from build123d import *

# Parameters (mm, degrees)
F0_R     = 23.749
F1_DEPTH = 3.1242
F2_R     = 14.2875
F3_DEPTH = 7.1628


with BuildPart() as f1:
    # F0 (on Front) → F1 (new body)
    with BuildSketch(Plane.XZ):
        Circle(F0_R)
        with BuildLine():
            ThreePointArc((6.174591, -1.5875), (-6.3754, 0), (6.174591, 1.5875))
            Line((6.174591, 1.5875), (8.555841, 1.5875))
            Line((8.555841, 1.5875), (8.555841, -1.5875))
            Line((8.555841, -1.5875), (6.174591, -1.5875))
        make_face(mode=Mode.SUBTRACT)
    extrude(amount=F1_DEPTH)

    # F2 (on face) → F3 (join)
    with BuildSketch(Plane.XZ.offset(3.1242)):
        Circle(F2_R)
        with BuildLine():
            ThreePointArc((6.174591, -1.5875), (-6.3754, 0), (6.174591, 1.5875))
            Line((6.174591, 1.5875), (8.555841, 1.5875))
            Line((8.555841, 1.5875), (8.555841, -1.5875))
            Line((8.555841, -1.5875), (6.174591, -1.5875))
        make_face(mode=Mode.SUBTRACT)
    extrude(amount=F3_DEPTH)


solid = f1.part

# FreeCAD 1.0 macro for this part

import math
import FreeCAD as App
import Part
import Sketcher

V = App.Vector
Q = App.Units.Quantity

doc = App.newDocument("Part")
params = doc.addObject("Spreadsheet::Sheet", "Params")
for row, (alias, value) in enumerate([
    ("sketch1_diameter", "1.87 in"),
    ("sketch1_radius", "0.251 in"),
    ("sketch1_width", "0.09375 in"),
    ("sketch1_height", "0.125 in"),
    ("pad1_length", "0.123 in"),
    ("sketch2_diameter", "1.125 in"),
    ("sketch2_radius", "0.251 in"),
    ("sketch2_width", "0.09375 in"),
    ("sketch2_height", "0.125 in"),
    ("pad2_length", "0.282 in"),
], start=1):
    params.set(f"A{row}", alias)
    params.set(f"B{row}", "=" + value)
    params.setAlias(f"B{row}", alias)

body = doc.addObject("PartDesign::Body", "Body")

# Sketch on XZ plane
sketch1 = body.newObject("Sketcher::SketchObject", "Sketch")
sketch1.AttachmentSupport = (doc.getObject("XZ_Plane"), [""])
sketch1.MapMode = "FlatFace"
sketch1.addGeometry([
    Part.Circle(V(0, 0, 0), V(0, 0, 1), 23.7),  # 0
    Part.LineSegment(V(8.6, -1.6, 0), V(6.2, -1.6, 0)),  # 1
    Part.ArcOfCircle(Part.Circle(V(0, 0, 0), V(0, 0, 1), 6.4), math.radians(14), math.radians(346)),  # 2
    Part.LineSegment(V(6.2, 1.6, 0), V(8.6, 1.6, 0)),  # 3
    Part.LineSegment(V(8.6, 1.6, 0), V(8.6, -1.6, 0)),  # 4
], False)
sketch1.addConstraint([
    Sketcher.Constraint("Coincident", 1, 2, 2, 2),
    Sketcher.Constraint("Coincident", 2, 1, 3, 1),
    Sketcher.Constraint("Coincident", 3, 2, 4, 1),
    Sketcher.Constraint("Coincident", 4, 2, 1, 1),
    Sketcher.Constraint("Horizontal", 1),
    Sketcher.Constraint("Horizontal", 3),
    Sketcher.Constraint("Vertical", 4),
    Sketcher.Constraint("Coincident", 0, 3, -1, 1),
    Sketcher.Constraint("Coincident", 2, 3, -1, 1),
    Sketcher.Constraint("Vertical", 1, 2, 2, 1),
    Sketcher.Constraint("Diameter", 0, Q("1.87 in")),
    Sketcher.Constraint("Radius", 2, Q("0.251 in")),
    Sketcher.Constraint("DistanceX", 1, 2, 1, 1, Q("0.09375 in")),
    Sketcher.Constraint("DistanceY", 4, 2, 4, 1, Q("0.125 in")),
])
sketch1.setExpression("Constraints[10]", "Params.sketch1_diameter")
sketch1.setExpression("Constraints[11]", "Params.sketch1_radius")
sketch1.setExpression("Constraints[12]", "Params.sketch1_width")
sketch1.setExpression("Constraints[13]", "Params.sketch1_height")
pad1 = body.newObject("PartDesign::Pad", "Pad")
pad1.Profile = sketch1
pad1.setExpression("Length", "Params.pad1_length")

# Sketch on XZ plane
sketch2 = body.newObject("Sketcher::SketchObject", "Sketch001")
sketch2.AttachmentSupport = (doc.getObject("XZ_Plane"), [""])
sketch2.MapMode = "FlatFace"
sketch2.AttachmentOffset = App.Placement(V(0, 0, 0.123 * 25.4), App.Rotation())
sketch2.addGeometry([
    Part.Circle(V(0, 0, 0), V(0, 0, 1), 14.3),  # 0
    Part.LineSegment(V(8.6, -1.6, 0), V(6.2, -1.6, 0)),  # 1
    Part.ArcOfCircle(Part.Circle(V(0, 0, 0), V(0, 0, 1), 6.4), math.radians(14), math.radians(346)),  # 2
    Part.LineSegment(V(6.2, 1.6, 0), V(8.6, 1.6, 0)),  # 3
    Part.LineSegment(V(8.6, 1.6, 0), V(8.6, -1.6, 0)),  # 4
], False)
sketch2.addConstraint([
    Sketcher.Constraint("Coincident", 1, 2, 2, 2),
    Sketcher.Constraint("Coincident", 2, 1, 3, 1),
    Sketcher.Constraint("Coincident", 3, 2, 4, 1),
    Sketcher.Constraint("Coincident", 4, 2, 1, 1),
    Sketcher.Constraint("Horizontal", 1),
    Sketcher.Constraint("Horizontal", 3),
    Sketcher.Constraint("Vertical", 4),
    Sketcher.Constraint("Coincident", 0, 3, -1, 1),
    Sketcher.Constraint("Coincident", 2, 3, -1, 1),
    Sketcher.Constraint("Vertical", 1, 2, 2, 1),
    Sketcher.Constraint("Diameter", 0, Q("1.125 in")),
    Sketcher.Constraint("Radius", 2, Q("0.251 in")),
    Sketcher.Constraint("DistanceX", 1, 2, 1, 1, Q("0.09375 in")),
    Sketcher.Constraint("DistanceY", 4, 2, 4, 1, Q("0.125 in")),
])
sketch2.setExpression("Constraints[10]", "Params.sketch2_diameter")
sketch2.setExpression("Constraints[11]", "Params.sketch2_radius")
sketch2.setExpression("Constraints[12]", "Params.sketch2_width")
sketch2.setExpression("Constraints[13]", "Params.sketch2_height")
pad2 = body.newObject("PartDesign::Pad", "Pad001")
pad2.Profile = sketch2
pad2.setExpression("Length", "Params.pad2_length")

doc.recompute()
